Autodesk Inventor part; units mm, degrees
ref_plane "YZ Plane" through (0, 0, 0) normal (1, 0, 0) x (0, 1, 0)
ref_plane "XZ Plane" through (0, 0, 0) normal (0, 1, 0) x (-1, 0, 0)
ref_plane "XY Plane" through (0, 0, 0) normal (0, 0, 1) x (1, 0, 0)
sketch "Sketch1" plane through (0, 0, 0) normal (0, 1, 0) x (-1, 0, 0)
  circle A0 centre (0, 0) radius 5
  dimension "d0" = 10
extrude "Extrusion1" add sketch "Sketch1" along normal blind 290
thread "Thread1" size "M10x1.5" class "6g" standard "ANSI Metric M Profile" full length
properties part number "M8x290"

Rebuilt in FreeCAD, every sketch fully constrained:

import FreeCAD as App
import Part
import Sketcher
from FreeCAD import Vector

doc = App.newDocument("Part")
body = doc.addObject("PartDesign::Body", "Body")

sketch1 = body.newObject("Sketcher::SketchObject", "Sketch")
sketch1.AttachmentSupport = (doc.getObject("XZ_Plane"), [""])
sketch1.MapMode = "FlatFace"
sketch1.addGeometry(Part.Circle(Vector(0, 0, 0), Vector(0, 0, 1), 5), False)
sketch1.addConstraint([
    Sketcher.Constraint("Coincident", 0, 3, -1, 1),
    Sketcher.Constraint("Diameter", 0, 10.0),
])
pad1 = body.newObject("PartDesign::Pad", "Pad")
pad1.Profile = sketch1
pad1.Length = 290
pad1.Reversed = True

doc.recompute()
